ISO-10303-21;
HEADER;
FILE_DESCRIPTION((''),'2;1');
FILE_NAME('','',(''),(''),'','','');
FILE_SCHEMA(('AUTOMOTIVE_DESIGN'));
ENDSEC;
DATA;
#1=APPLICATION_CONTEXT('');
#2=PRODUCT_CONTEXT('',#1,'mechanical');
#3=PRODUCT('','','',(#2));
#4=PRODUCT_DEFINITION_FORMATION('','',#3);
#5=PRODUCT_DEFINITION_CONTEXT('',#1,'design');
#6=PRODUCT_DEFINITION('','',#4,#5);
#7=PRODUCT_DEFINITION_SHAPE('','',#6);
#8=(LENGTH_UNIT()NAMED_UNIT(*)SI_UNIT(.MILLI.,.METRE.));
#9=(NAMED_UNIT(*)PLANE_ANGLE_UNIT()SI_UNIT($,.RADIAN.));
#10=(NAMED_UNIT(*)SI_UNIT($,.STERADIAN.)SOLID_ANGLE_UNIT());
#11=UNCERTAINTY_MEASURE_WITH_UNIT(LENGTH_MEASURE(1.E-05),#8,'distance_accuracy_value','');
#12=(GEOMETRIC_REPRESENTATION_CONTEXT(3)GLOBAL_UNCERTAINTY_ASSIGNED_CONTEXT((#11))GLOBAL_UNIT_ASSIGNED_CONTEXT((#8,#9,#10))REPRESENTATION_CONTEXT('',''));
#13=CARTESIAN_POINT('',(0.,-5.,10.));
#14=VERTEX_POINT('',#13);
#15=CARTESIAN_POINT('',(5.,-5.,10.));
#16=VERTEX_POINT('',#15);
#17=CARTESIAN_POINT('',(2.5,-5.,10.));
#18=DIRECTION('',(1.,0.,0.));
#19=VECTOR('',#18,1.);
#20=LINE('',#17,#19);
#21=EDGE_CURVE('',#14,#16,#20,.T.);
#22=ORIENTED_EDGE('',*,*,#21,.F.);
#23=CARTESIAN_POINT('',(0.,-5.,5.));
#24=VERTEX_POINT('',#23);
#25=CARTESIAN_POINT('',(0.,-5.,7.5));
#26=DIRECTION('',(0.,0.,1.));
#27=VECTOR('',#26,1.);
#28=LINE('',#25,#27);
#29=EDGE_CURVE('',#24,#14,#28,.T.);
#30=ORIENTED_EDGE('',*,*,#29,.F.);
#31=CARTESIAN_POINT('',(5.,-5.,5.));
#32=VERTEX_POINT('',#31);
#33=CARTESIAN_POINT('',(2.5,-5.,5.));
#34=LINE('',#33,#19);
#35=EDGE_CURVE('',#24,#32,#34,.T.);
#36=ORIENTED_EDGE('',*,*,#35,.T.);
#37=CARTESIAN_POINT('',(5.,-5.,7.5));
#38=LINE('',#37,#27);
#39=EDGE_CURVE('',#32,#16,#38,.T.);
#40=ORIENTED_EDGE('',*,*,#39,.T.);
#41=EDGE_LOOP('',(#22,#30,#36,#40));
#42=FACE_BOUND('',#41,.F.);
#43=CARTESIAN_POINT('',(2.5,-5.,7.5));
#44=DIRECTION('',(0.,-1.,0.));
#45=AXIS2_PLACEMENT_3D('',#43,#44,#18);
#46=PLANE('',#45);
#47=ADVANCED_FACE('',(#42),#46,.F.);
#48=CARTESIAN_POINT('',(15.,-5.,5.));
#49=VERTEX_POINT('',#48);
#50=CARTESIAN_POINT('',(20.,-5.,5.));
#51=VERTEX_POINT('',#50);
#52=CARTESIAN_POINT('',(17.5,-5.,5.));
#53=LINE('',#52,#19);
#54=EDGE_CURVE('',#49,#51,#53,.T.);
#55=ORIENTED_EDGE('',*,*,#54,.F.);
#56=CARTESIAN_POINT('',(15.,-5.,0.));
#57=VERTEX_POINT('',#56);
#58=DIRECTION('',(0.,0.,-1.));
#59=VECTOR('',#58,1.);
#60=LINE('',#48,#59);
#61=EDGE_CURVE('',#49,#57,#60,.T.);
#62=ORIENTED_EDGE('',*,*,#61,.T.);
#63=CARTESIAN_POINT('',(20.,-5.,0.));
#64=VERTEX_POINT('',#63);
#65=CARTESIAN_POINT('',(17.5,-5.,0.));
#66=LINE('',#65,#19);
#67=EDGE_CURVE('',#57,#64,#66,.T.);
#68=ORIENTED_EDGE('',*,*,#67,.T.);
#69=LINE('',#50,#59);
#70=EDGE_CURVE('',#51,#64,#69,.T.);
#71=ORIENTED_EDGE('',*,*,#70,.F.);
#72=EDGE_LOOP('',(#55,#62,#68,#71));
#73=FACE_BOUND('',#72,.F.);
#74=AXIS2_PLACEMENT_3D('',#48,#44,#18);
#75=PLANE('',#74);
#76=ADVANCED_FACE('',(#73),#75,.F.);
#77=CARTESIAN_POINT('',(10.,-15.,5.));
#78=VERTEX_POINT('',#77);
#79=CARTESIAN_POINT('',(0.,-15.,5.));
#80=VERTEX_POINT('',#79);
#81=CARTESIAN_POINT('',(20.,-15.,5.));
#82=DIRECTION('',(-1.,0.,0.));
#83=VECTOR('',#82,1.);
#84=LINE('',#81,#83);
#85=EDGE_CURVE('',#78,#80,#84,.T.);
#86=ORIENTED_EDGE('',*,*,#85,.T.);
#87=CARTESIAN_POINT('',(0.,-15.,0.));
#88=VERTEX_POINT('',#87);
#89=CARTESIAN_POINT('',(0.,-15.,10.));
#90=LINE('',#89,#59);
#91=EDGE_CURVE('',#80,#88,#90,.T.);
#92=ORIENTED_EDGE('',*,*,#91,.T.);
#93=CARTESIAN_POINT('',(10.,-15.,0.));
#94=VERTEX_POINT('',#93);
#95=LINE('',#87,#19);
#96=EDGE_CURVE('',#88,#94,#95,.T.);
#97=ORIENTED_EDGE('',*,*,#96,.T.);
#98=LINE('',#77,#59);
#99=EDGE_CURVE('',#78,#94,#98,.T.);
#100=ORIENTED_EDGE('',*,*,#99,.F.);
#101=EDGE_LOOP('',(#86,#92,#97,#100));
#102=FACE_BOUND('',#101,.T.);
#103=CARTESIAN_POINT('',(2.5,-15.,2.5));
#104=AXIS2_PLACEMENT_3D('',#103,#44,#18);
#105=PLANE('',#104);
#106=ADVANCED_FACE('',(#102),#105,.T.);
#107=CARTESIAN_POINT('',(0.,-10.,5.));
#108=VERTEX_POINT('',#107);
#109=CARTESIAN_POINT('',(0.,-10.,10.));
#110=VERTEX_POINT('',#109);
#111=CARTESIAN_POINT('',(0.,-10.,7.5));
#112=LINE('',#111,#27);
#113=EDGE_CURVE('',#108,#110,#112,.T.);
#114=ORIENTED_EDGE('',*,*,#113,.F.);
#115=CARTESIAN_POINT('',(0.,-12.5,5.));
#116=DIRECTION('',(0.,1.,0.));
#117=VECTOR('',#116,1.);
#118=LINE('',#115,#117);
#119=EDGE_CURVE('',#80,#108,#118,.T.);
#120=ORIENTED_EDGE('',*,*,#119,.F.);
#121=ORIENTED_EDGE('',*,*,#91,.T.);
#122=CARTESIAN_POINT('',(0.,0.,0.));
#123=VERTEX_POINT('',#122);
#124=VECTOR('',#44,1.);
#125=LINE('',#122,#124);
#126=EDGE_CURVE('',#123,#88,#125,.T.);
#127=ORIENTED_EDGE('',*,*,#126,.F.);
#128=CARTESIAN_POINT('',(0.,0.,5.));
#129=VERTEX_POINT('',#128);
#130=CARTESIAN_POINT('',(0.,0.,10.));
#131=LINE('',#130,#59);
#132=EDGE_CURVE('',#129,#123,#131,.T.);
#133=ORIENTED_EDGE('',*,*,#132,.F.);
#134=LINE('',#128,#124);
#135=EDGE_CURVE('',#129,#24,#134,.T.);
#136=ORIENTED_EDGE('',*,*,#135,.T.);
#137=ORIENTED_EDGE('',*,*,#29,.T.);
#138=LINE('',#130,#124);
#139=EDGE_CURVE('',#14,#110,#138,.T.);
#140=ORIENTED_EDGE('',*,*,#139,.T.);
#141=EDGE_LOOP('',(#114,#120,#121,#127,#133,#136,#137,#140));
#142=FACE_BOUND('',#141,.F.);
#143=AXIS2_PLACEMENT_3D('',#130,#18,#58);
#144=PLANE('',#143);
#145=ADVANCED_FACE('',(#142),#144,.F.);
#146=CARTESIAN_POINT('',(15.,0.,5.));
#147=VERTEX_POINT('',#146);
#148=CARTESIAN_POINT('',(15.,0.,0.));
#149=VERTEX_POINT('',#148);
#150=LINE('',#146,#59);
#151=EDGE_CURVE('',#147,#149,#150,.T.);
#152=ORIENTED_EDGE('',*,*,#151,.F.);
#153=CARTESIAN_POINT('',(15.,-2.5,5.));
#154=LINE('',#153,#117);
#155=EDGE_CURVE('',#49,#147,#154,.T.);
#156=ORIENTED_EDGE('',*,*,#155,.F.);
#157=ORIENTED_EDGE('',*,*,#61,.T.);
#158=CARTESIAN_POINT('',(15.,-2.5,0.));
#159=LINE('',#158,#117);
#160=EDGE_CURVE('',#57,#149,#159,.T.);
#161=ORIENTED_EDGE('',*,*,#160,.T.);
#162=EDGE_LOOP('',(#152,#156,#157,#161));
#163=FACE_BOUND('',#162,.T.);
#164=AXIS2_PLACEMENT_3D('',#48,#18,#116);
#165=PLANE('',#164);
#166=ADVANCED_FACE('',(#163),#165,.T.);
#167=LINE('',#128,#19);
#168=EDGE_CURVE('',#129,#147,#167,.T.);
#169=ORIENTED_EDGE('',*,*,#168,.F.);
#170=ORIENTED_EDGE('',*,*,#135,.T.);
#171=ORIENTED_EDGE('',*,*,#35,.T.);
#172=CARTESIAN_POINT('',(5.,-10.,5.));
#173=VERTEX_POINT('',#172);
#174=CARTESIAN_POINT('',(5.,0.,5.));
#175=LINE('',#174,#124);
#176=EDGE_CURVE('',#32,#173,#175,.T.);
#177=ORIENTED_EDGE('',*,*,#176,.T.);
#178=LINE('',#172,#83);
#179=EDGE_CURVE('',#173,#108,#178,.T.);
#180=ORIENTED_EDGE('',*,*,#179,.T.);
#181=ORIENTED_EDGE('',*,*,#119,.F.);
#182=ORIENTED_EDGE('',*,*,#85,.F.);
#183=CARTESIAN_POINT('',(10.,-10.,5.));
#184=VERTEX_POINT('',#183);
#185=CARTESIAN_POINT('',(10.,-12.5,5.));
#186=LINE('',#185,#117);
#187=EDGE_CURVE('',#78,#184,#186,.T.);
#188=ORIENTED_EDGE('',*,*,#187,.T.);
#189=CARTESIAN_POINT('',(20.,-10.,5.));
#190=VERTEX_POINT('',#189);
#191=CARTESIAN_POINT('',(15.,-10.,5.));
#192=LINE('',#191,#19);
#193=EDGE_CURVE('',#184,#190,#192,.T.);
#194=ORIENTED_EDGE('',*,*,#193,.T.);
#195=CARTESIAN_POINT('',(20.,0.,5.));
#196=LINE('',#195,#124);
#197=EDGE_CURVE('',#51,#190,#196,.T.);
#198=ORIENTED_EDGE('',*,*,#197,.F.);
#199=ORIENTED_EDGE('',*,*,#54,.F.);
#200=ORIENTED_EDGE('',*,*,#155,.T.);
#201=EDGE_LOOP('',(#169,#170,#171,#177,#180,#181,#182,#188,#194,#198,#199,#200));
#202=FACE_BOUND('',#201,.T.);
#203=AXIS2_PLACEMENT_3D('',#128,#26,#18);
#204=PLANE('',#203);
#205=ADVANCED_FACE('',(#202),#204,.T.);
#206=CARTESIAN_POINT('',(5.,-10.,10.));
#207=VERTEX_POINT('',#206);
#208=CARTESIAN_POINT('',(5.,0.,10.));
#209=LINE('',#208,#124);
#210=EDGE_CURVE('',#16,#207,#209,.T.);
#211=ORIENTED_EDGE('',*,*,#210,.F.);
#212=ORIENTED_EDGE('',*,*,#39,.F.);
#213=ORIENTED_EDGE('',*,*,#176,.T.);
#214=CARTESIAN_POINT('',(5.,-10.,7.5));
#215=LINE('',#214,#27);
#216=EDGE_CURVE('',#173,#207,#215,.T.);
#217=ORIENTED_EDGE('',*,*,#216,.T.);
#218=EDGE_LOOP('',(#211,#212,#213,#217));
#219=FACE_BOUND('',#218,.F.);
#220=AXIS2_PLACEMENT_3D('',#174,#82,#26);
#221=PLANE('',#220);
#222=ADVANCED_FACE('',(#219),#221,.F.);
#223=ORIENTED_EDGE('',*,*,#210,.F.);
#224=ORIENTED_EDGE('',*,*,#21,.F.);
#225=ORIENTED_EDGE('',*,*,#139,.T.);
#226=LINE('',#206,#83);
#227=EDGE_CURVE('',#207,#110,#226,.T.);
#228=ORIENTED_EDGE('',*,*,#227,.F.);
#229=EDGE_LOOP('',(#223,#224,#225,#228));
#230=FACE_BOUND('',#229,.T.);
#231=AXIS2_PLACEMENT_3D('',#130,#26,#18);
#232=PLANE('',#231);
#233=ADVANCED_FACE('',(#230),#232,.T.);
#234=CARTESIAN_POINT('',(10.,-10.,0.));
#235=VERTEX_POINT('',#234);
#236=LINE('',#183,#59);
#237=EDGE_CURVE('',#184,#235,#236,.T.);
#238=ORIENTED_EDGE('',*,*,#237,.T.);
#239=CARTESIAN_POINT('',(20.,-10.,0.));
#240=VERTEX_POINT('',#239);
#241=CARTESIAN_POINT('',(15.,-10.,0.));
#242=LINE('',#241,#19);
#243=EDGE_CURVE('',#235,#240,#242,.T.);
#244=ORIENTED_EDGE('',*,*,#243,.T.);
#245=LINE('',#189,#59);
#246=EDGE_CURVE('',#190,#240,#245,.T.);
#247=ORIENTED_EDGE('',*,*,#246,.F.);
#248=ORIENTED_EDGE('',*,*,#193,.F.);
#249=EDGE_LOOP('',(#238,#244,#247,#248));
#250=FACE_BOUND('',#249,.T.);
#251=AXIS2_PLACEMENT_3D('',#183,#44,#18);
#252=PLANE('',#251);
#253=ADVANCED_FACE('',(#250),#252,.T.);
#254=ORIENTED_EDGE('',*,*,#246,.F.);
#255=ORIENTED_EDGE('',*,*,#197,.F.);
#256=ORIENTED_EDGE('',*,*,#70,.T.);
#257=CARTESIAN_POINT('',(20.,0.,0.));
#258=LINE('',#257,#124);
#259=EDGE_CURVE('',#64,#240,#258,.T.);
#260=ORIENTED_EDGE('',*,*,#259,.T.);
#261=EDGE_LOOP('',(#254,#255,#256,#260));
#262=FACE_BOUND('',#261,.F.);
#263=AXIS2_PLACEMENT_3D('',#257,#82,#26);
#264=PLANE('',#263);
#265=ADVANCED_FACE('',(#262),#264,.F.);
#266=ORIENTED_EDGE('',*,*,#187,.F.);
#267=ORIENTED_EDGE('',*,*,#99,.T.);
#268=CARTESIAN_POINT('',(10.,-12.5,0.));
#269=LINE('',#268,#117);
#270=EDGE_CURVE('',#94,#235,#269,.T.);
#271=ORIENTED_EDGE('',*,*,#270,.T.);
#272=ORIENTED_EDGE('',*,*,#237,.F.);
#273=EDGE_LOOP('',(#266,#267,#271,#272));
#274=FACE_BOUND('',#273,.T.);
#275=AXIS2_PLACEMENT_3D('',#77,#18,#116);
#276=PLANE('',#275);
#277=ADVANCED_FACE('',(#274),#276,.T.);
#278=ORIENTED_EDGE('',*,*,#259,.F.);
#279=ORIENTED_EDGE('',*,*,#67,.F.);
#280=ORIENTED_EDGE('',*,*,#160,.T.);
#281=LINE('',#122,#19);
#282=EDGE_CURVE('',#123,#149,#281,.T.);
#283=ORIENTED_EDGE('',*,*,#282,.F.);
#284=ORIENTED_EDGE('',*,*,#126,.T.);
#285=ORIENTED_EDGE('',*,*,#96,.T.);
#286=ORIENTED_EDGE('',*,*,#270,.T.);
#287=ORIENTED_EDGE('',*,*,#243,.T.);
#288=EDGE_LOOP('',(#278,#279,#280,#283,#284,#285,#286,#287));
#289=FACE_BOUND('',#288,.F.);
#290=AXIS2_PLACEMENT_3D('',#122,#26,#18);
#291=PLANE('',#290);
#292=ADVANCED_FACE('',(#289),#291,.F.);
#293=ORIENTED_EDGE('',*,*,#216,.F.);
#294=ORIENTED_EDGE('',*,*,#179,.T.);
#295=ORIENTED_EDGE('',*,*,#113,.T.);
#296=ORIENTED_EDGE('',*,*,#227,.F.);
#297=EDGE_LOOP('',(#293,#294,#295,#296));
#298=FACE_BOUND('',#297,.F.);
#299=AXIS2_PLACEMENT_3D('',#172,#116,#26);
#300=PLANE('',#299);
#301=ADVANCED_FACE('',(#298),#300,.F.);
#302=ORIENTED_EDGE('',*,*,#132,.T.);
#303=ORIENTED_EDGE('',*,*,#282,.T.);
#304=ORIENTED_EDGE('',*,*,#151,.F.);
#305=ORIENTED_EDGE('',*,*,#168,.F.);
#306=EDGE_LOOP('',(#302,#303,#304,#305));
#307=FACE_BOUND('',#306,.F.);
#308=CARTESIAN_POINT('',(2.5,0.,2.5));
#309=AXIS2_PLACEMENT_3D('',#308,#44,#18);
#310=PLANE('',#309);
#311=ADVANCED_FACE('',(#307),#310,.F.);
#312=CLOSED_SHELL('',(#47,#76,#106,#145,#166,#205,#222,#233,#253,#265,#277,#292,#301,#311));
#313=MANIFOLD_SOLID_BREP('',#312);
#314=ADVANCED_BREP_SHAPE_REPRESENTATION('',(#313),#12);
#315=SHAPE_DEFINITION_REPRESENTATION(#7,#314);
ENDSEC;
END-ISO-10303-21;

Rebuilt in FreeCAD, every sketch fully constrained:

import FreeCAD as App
import Part
import Sketcher

V = App.Vector
Q = App.Units.Quantity


def add_polygon(sketch, points):
    """Adds a closed chain of lines whose ends are joined by coincident constraints."""
    first, n = sketch.GeometryCount, len(points)
    for a, b in zip(points, points[1:] + points[:1]):
        sketch.addGeometry(Part.LineSegment(App.Vector(*a, 0), App.Vector(*b, 0)), False)
    for i in range(n):
        sketch.addConstraint(Sketcher.Constraint("Coincident", first + i, 2, first + (i + 1) % n, 1))

doc = App.newDocument("Part")
body = doc.addObject("PartDesign::Body", "Body")

# Sketch on XZ plane
sketch1 = body.newObject("Sketcher::SketchObject", "Sketch")
sketch1.AttachmentSupport = (doc.getObject("XZ_Plane"), [""])
sketch1.MapMode = "FlatFace"
add_polygon(sketch1, [(0, 0), (20, 0), (20, 5), (5, 5), (5, 10), (0, 10)])  # lines 0-5
sketch1.addConstraint([
    Sketcher.Constraint("Horizontal", 0),
    Sketcher.Constraint("Vertical", 1),
    Sketcher.Constraint("Horizontal", 2),
    Sketcher.Constraint("Vertical", 3),
    Sketcher.Constraint("Horizontal", 4),
    Sketcher.Constraint("Vertical", 5),
    Sketcher.Constraint("Coincident", 5, 2, -1, 1),
    Sketcher.Constraint("Equal", 4, 1),
    Sketcher.Constraint("Equal", 1, 3),
    Sketcher.Constraint("DistanceX", 0, 1, 0, 2, Q("20 mm")),
    Sketcher.Constraint("DistanceX", 2, 2, 2, 1, Q("15 mm")),
])
pad1 = body.newObject("PartDesign::Pad", "Pad")
pad1.Profile = sketch1
pad1.Length = 15

# Sketch on XZ plane
sketch2 = body.newObject("Sketcher::SketchObject", "Sketch001")
sketch2.AttachmentSupport = (doc.getObject("XZ_Plane"), [""])
sketch2.MapMode = "FlatFace"
add_polygon(sketch2, [(0, 10), (0, 5), (5, 5), (5, 10)])  # lines 0-3
sketch2.addConstraint([
    Sketcher.Constraint("Vertical", 0),
    Sketcher.Constraint("Horizontal", 1),
    Sketcher.Constraint("Vertical", 2),
    Sketcher.Constraint("Horizontal", 3),
    Sketcher.Constraint("PointOnObject", 0, 2, -2),
    Sketcher.Constraint("Equal", 3, 0),
    Sketcher.Constraint("DistanceX", 1, 1, 1, 2, Q("5 mm")),
    Sketcher.Constraint("DistanceY", -1, 1, 0, 2, Q("5 mm")),
])
pocket1 = body.newObject("PartDesign::Pocket", "Pocket")
pocket1.Profile = sketch2
pocket1.Length = 5
pocket1.Reversed = True

# Sketch on YZ plane
sketch3 = body.newObject("Sketcher::SketchObject", "Sketch002")
sketch3.AttachmentSupport = (doc.getObject("YZ_Plane"), [""])
sketch3.MapMode = "FlatFace"
sketch3.AttachmentOffset = App.Placement(V(0, 0, 5), App.Rotation())
add_polygon(sketch3, [(-15, 10), (-15, 5), (-10, 5), (-10, 10)])  # lines 0-3
sketch3.addConstraint([
    Sketcher.Constraint("Vertical", 0),
    Sketcher.Constraint("Horizontal", 1),
    Sketcher.Constraint("Vertical", 2),
    Sketcher.Constraint("Horizontal", 3),
    Sketcher.Constraint("Equal", 3, 0),
    Sketcher.Constraint("DistanceX", 1, 1, 1, 2, Q("5 mm")),
    Sketcher.Constraint("DistanceX", 0, 2, -1, 1, Q("15 mm")),
    Sketcher.Constraint("DistanceY", -1, 1, 0, 2, Q("5 mm")),
])
pocket2 = body.newObject("PartDesign::Pocket", "Pocket001")
pocket2.Profile = sketch3
pocket2.Length = 5

# Sketch on XY plane
sketch4 = body.newObject("Sketcher::SketchObject", "Sketch003")
sketch4.AttachmentSupport = (doc.getObject("XY_Plane"), [""])
sketch4.MapMode = "FlatFace"
sketch4.AttachmentOffset = App.Placement(V(0, 0, 5), App.Rotation())
add_polygon(sketch4, [(10, -10), (10, -15), (20, -15), (20, -10)])  # lines 0-3
sketch4.addConstraint([
    Sketcher.Constraint("Vertical", 0),
    Sketcher.Constraint("Horizontal", 1),
    Sketcher.Constraint("Vertical", 2),
    Sketcher.Constraint("Horizontal", 3),
    Sketcher.Constraint("DistanceX", 1, 1, 1, 2, Q("10 mm")),
    Sketcher.Constraint("DistanceY", 0, 2, 0, 1, Q("5 mm")),
    Sketcher.Constraint("DistanceX", -1, 1, 0, 2, Q("10 mm")),
    Sketcher.Constraint("DistanceY", 0, 2, -1, 1, Q("15 mm")),
])
pocket3 = body.newObject("PartDesign::Pocket", "Pocket002")
pocket3.Profile = sketch4
pocket3.Length = 5

# Sketch on XY plane
sketch5 = body.newObject("Sketcher::SketchObject", "Sketch004")
sketch5.AttachmentSupport = (doc.getObject("XY_Plane"), [""])
sketch5.MapMode = "FlatFace"
sketch5.AttachmentOffset = App.Placement(V(0, 0, 5), App.Rotation())
add_polygon(sketch5, [(15, 0), (15, -5), (20, -5), (20, 0)])  # lines 0-3
sketch5.addConstraint([
    Sketcher.Constraint("Vertical", 0),
    Sketcher.Constraint("Horizontal", 1),
    Sketcher.Constraint("Vertical", 2),
    Sketcher.Constraint("Horizontal", 3),
    Sketcher.Constraint("PointOnObject", 2, 2, -1),
    Sketcher.Constraint("Equal", 3, 0),
    Sketcher.Constraint("DistanceX", 1, 1, 1, 2, Q("5 mm")),
    Sketcher.Constraint("DistanceX", -1, 1, 0, 2, Q("15 mm")),
])
pocket4 = body.newObject("PartDesign::Pocket", "Pocket003")
pocket4.Profile = sketch5
pocket4.Length = 5

doc.recompute()
